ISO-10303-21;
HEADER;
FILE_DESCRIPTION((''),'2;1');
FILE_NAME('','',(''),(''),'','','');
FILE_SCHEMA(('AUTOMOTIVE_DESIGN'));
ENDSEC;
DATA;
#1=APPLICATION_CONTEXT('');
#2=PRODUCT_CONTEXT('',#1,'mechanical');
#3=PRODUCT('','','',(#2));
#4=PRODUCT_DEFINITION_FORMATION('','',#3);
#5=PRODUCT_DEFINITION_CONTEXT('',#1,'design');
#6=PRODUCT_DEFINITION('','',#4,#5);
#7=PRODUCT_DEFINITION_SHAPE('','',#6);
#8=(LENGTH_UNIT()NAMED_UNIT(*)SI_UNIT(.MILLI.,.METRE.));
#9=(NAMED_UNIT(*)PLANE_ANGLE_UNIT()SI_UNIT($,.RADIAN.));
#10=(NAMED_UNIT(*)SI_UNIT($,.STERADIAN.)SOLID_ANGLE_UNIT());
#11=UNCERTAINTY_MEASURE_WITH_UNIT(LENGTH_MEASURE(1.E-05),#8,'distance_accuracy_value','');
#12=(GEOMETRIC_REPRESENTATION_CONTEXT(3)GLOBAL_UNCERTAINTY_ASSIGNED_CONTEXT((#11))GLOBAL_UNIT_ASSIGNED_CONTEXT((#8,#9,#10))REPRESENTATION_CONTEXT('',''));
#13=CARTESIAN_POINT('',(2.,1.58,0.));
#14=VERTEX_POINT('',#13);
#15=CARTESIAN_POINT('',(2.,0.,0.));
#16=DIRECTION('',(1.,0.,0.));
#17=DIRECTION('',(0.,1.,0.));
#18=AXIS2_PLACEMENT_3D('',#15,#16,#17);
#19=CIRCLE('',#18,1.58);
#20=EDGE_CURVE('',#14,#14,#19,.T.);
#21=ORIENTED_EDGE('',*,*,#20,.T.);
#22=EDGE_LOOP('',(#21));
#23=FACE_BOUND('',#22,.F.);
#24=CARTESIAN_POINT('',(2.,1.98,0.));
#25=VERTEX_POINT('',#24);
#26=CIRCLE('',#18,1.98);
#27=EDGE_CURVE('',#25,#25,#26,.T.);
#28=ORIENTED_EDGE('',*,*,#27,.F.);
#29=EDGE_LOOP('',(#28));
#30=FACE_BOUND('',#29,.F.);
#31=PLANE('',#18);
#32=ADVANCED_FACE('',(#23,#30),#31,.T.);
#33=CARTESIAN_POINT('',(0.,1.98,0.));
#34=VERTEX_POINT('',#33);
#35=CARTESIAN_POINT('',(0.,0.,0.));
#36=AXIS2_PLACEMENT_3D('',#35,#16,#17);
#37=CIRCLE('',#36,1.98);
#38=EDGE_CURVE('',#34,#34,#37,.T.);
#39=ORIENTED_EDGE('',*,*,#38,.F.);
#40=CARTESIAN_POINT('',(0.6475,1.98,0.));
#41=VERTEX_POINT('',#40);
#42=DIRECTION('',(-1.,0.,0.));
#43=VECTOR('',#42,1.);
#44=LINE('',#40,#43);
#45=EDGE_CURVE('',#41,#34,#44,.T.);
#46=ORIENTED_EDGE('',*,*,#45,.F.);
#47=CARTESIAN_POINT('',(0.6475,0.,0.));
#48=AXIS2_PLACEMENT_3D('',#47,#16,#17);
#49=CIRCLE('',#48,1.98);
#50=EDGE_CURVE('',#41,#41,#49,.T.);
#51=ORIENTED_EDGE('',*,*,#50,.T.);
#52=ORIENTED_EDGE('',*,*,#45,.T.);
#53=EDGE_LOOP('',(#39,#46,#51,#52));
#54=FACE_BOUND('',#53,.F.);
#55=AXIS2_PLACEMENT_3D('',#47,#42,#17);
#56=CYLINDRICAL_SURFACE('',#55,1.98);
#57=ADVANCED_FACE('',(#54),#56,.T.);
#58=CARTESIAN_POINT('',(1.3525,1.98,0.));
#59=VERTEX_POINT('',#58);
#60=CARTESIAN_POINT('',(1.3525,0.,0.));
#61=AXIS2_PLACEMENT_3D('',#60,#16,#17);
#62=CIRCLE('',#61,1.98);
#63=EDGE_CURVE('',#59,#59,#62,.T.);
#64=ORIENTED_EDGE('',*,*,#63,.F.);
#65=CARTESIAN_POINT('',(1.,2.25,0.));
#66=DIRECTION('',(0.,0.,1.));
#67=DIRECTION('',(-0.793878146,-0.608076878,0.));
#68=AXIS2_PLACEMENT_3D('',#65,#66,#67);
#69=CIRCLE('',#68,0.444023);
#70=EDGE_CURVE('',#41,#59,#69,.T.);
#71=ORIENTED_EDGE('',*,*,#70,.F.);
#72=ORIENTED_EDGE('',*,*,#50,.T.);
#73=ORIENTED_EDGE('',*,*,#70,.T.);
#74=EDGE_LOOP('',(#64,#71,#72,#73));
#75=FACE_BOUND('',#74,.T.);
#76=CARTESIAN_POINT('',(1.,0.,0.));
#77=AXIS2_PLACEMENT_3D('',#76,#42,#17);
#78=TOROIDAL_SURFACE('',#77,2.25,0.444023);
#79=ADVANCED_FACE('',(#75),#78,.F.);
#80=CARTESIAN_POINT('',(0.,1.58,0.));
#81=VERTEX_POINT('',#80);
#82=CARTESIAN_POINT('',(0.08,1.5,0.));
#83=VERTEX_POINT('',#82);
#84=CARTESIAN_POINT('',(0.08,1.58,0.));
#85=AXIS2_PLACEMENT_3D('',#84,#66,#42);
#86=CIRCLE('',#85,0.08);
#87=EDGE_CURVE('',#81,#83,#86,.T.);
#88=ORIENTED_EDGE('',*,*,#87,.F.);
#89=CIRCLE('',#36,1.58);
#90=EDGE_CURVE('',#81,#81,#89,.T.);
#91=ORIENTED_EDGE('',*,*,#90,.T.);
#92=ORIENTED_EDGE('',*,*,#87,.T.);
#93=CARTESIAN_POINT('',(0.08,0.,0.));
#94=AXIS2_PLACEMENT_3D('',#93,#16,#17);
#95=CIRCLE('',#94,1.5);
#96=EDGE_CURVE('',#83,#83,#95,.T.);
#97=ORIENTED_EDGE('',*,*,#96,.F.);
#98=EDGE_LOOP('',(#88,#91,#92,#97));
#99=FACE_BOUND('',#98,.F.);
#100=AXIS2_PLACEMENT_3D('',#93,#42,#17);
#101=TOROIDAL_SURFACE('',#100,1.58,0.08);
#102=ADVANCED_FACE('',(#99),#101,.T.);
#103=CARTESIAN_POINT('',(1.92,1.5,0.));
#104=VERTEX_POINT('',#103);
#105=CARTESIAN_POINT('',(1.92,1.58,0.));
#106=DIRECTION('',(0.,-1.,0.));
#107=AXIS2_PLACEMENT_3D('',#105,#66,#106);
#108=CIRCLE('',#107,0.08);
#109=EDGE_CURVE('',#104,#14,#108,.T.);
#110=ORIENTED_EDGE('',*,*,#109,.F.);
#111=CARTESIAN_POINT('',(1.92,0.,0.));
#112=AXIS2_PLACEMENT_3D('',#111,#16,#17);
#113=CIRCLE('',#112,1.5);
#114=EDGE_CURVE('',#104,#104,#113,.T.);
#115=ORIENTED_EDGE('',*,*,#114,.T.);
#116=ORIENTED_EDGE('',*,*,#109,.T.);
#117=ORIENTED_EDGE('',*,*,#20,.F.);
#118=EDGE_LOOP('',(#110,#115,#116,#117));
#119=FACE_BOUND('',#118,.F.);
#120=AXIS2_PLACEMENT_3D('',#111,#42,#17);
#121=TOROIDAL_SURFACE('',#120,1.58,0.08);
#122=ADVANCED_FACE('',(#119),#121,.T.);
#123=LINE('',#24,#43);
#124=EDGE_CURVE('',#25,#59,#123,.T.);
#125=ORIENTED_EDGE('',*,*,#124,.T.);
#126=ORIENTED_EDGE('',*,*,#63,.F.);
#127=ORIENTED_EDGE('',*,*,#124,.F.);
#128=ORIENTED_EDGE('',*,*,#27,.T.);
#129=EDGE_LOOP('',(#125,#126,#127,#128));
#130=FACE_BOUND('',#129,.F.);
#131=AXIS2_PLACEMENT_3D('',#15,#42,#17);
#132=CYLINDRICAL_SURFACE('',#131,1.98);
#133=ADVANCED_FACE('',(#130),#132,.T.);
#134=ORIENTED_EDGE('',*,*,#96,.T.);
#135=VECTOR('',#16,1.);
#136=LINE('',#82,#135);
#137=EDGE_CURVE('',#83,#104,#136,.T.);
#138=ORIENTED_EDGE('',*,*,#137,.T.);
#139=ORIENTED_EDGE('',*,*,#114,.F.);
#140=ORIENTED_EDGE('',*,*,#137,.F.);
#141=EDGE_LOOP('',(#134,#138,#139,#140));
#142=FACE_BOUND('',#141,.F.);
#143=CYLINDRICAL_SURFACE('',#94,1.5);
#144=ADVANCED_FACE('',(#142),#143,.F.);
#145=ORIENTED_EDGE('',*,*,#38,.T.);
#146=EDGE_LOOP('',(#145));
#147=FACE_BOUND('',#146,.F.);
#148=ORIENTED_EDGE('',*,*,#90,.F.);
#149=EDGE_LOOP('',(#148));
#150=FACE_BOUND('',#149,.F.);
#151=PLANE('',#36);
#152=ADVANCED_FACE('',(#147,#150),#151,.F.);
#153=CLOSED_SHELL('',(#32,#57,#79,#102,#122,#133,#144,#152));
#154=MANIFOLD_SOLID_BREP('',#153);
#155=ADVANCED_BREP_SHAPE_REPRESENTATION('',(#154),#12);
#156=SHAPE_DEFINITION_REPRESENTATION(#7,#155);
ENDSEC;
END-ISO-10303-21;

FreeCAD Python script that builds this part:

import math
import FreeCAD as App
import Part
import Sketcher

V = App.Vector

doc = App.newDocument("Part")
body = doc.addObject("PartDesign::Body", "Body")

# Sketch on XY plane
sketch1 = doc.addObject("Sketcher::SketchObject", "Sketch")
body.addObject(sketch1)
sketch1.AttachmentSupport = (doc.XY_Plane, [""])
sketch1.MapMode = "FlatFace"
sketch1.addGeometry([
    Part.LineSegment(V(0, 1.98, 0), V(0, 1.58, 0)),  # 0
    Part.ArcOfCircle(Part.Circle(V(0.08, 1.58, 0), V(0, 0, 1), 0.08), math.radians(180), math.radians(270)),  # 1
    Part.LineSegment(V(0.08, 1.5, 0), V(1.92, 1.5, 0)),  # 2
    Part.ArcOfCircle(Part.Circle(V(1.92, 1.58, 0), V(0, 0, 1), 0.08), math.radians(-90), math.radians(0)),  # 3
    Part.LineSegment(V(2, 1.58, 0), V(2, 1.98, 0)),  # 4
    Part.LineSegment(V(2, 1.98, 0), V(1.35, 1.98, 0)),  # 5
    Part.ArcOfCircle(Part.Circle(V(1, 2.25, 0), V(0, 0, 1), 0.44), math.radians(-143), math.radians(-37)),  # 6
    Part.LineSegment(V(0.65, 1.98, 0), V(0, 1.98, 0)),  # 7
], False)
sketch1.addConstraint([
    Sketcher.Constraint("Tangent", 0, 2, 1, 1),
    Sketcher.Constraint("Tangent", 1, 2, 2, 1),
    Sketcher.Constraint("Tangent", 2, 2, 3, 1),
    Sketcher.Constraint("Tangent", 3, 2, 4, 1),
    Sketcher.Constraint("Coincident", 4, 2, 5, 1),
    Sketcher.Constraint("Coincident", 5, 2, 6, 2),
    Sketcher.Constraint("Coincident", 6, 1, 7, 1),
    Sketcher.Constraint("Coincident", 7, 2, 0, 1),
    Sketcher.Constraint("Vertical", 0),
    Sketcher.Constraint("Horizontal", 2),
    Sketcher.Constraint("Vertical", 4),
    Sketcher.Constraint("Horizontal", 5),
    Sketcher.Constraint("Horizontal", 7),
    Sketcher.Constraint("Equal", 1, 3),
    Sketcher.Constraint("PointOnObject", 0, 2, -2),
    Sketcher.Constraint("Horizontal", 5, 2, 6, 1),
    Sketcher.Constraint("Equal", 5, 7),
    Sketcher.Constraint("Radius", 1, 0.08),
    Sketcher.Constraint("DistanceY", 0, 2, 0, 1, 0.4),
    Sketcher.Constraint("DistanceX", -1, 1, 6, 3, 1.0),
    Sketcher.Constraint("Radius", 6, 0.444),
    Sketcher.Constraint("DistanceY", -1, 1, 1, 2, 1.5),
    Sketcher.Constraint("DistanceY", -1, 1, 6, 3, 2.25),
])
revolution = doc.addObject("PartDesign::Revolution", "Revolution")
body.addObject(revolution)
revolution.Profile = sketch1
revolution.ReferenceAxis = (sketch1, ["H_Axis"])
revolution.Angle = 360

doc.recompute()
